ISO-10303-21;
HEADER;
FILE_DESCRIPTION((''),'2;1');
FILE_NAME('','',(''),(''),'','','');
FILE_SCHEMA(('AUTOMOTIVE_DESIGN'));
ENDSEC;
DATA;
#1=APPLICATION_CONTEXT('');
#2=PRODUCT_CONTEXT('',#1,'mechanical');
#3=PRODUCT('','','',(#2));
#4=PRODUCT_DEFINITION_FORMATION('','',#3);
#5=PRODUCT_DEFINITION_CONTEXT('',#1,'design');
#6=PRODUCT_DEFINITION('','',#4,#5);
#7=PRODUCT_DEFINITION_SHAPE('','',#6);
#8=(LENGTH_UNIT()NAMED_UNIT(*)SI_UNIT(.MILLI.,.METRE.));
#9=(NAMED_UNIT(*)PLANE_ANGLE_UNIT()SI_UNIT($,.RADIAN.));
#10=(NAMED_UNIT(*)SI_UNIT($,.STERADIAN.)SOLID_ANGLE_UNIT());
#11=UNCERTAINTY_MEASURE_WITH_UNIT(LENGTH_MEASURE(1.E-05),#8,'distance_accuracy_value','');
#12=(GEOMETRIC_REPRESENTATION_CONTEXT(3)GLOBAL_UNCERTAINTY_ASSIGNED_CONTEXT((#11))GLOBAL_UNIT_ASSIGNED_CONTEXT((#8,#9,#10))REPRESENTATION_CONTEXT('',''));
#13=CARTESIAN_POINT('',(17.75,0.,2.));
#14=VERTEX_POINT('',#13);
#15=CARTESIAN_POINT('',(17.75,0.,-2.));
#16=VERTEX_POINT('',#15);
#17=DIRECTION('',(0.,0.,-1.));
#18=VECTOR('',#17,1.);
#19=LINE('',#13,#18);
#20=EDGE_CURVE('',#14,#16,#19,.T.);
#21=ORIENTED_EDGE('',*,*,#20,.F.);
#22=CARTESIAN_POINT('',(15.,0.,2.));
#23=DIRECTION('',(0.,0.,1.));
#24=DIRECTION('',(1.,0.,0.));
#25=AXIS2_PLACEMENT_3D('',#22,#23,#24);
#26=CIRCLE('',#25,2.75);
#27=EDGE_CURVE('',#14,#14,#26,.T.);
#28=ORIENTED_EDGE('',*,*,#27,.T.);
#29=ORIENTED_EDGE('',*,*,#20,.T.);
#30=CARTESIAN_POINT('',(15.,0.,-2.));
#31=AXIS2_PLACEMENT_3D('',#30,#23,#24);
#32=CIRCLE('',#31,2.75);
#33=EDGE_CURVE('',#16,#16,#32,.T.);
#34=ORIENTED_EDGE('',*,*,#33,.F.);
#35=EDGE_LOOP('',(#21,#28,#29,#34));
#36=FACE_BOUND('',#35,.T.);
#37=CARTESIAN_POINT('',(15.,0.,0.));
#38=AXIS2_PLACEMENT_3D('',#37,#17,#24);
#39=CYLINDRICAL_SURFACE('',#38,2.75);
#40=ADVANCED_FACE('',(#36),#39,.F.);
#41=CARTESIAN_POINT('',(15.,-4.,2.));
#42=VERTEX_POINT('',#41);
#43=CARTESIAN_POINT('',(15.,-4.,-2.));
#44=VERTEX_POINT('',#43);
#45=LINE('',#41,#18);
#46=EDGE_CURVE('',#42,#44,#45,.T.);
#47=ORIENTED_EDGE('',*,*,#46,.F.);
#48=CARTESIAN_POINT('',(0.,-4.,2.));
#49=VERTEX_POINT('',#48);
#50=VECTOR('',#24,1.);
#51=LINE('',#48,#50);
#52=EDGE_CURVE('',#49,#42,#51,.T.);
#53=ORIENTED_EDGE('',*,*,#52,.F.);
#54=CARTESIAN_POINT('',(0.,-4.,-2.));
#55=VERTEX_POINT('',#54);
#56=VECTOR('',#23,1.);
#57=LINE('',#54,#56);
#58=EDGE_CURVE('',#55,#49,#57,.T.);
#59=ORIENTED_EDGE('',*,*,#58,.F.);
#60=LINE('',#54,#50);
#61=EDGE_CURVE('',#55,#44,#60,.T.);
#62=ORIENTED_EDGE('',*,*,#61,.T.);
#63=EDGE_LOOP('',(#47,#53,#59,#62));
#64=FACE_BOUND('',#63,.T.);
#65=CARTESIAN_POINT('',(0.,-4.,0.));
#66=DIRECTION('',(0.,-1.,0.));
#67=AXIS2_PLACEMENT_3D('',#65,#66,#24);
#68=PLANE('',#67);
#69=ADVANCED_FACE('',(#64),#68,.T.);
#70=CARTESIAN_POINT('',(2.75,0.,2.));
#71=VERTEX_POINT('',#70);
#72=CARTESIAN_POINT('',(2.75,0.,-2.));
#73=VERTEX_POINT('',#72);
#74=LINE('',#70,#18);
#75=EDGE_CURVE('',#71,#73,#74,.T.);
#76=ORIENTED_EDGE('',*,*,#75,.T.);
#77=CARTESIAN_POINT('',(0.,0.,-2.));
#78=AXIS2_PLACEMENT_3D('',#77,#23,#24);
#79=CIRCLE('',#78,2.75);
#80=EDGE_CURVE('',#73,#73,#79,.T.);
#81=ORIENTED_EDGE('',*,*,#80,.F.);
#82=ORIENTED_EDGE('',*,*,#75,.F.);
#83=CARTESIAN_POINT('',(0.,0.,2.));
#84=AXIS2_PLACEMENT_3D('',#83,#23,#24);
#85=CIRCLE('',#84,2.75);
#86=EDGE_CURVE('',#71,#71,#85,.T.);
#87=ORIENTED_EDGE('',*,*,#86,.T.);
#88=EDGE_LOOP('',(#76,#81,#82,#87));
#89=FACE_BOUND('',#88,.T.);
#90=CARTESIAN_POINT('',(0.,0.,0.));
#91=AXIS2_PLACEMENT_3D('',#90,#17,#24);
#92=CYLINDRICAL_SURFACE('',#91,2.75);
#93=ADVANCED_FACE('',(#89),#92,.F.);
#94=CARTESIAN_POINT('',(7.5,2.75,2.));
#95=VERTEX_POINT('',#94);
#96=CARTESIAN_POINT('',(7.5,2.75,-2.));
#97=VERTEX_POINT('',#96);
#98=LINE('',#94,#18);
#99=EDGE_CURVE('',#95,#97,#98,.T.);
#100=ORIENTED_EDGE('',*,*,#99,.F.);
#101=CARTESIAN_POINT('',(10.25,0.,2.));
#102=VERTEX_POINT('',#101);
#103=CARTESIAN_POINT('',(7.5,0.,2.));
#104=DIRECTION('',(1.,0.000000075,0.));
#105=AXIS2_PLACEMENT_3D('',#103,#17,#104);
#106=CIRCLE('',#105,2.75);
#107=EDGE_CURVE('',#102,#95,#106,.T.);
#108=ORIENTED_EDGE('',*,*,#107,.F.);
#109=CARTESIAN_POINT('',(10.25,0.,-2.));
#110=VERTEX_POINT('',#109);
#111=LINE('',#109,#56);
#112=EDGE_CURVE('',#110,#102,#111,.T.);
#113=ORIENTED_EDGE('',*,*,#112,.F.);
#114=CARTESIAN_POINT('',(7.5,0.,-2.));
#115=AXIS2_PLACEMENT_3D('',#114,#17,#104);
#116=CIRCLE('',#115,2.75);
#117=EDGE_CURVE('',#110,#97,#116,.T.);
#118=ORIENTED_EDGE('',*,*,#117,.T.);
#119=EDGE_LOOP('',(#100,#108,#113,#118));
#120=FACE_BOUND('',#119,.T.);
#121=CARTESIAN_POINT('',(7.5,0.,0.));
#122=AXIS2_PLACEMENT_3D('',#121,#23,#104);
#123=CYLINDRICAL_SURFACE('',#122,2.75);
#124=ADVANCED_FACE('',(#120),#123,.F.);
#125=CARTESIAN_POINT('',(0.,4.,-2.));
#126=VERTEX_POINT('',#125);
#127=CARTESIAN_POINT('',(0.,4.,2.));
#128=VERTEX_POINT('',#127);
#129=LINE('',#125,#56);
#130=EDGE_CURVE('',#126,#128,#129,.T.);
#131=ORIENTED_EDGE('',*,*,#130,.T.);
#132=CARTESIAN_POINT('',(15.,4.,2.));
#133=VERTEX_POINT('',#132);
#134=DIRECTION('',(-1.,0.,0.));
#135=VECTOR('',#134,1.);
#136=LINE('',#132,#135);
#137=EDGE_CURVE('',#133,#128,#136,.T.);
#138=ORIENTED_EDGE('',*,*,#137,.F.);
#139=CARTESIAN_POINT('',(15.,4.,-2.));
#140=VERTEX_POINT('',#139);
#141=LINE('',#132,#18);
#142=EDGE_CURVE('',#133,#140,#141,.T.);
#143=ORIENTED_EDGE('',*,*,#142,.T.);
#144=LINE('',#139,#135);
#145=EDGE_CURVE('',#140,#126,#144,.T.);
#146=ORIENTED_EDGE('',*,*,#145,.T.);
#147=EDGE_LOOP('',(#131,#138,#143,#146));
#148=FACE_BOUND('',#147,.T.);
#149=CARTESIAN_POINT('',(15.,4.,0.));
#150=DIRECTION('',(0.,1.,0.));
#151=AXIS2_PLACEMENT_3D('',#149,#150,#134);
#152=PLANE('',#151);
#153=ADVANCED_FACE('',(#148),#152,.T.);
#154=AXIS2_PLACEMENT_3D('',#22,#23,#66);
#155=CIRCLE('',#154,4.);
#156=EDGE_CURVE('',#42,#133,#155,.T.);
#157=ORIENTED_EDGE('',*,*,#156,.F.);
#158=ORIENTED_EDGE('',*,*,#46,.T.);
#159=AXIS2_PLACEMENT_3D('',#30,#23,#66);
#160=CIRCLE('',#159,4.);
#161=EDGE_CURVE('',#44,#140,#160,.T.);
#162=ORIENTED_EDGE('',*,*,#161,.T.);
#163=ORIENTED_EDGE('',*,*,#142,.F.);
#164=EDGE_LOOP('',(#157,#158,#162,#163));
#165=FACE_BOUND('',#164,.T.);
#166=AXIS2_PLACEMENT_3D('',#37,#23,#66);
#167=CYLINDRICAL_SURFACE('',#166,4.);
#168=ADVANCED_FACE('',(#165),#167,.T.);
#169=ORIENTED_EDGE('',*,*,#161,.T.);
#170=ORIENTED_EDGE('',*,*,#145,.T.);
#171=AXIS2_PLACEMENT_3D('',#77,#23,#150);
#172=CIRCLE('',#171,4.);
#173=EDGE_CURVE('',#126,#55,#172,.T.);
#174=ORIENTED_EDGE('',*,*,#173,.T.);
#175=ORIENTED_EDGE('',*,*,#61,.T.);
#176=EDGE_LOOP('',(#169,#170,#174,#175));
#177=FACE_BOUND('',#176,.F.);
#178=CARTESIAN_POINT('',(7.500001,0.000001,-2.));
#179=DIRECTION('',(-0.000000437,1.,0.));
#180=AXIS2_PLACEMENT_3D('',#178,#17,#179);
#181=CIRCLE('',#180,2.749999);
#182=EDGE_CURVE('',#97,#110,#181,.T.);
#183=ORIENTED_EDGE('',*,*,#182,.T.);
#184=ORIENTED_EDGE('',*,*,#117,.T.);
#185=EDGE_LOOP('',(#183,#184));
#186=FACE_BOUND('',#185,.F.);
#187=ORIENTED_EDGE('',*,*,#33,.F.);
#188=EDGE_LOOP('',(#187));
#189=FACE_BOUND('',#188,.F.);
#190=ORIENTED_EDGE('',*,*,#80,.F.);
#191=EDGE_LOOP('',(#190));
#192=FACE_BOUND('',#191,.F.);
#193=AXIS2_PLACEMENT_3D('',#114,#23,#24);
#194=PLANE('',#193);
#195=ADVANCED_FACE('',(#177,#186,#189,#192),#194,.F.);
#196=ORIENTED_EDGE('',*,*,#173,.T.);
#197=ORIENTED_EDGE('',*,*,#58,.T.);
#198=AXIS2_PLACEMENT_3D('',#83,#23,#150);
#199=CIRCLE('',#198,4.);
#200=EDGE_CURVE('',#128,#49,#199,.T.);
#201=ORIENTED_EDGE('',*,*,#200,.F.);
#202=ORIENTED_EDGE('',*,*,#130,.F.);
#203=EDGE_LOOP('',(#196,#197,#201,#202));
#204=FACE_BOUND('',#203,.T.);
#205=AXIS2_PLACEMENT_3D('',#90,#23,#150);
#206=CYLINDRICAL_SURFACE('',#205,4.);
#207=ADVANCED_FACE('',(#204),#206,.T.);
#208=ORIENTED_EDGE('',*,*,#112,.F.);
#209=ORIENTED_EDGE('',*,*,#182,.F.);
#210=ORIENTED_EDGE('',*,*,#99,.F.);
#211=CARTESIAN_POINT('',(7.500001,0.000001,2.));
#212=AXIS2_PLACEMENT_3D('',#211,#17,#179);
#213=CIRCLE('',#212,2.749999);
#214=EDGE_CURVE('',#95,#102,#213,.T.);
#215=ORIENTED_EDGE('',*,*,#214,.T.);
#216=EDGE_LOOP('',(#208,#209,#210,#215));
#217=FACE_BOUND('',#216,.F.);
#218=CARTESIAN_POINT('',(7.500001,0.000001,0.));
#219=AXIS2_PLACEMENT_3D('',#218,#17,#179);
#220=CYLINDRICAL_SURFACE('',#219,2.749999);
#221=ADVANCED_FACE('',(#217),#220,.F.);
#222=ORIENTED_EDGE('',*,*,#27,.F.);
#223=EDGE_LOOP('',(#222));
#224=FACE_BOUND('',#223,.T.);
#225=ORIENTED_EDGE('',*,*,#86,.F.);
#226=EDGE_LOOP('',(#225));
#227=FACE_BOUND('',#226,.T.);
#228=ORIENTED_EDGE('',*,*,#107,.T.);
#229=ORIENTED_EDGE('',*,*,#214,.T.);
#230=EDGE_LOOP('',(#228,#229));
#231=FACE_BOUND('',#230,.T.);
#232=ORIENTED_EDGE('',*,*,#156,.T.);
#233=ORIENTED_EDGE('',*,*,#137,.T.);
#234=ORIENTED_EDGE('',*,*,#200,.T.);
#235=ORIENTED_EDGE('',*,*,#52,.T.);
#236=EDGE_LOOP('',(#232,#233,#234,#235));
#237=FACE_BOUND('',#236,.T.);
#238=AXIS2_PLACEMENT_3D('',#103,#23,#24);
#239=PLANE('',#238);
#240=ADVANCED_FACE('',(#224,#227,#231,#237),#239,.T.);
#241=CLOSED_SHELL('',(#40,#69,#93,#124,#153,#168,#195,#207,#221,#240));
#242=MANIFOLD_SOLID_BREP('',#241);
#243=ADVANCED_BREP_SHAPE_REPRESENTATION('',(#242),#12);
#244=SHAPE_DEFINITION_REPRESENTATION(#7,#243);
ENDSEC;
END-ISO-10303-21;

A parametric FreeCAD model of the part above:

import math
import FreeCAD as App
import Part
import Sketcher

V = App.Vector

doc = App.newDocument("Part")
body = doc.addObject("PartDesign::Body", "Body")

# Sketch on XY plane
sketch1 = body.newObject("Sketcher::SketchObject", "Sketch")
sketch1.AttachmentSupport = (doc.getObject("XY_Plane"), [""])
sketch1.MapMode = "FlatFace"
sketch1.addGeometry([
    Part.LineSegment(V(15, 4, 0), V(0, 4, 0)),  # 0
    Part.ArcOfCircle(Part.Circle(V(0, 0, 0), V(0, 0, 1), 4), math.radians(90), math.radians(270)),  # 1
    Part.LineSegment(V(0, -4, 0), V(15, -4, 0)),  # 2
    Part.ArcOfCircle(Part.Circle(V(15, 0, 0), V(0, 0, 1), 4), math.radians(-90), math.radians(90)),  # 3
    Part.Circle(V(0, 0, 0), V(0, 0, 1), 2.8),  # 4
    Part.ArcOfCircle(Part.Circle(V(7.5, 0, 0), V(0, 0, 1), 2.8), math.radians(90), math.radians(360)),  # 5
    Part.ArcOfCircle(Part.Circle(V(7.5, 0, 0), V(0, 0, 1), 2.7), math.radians(0), math.radians(90)),  # 6
    Part.Circle(V(15, 0, 0), V(0, 0, 1), 2.8),  # 7
], False)
sketch1.addConstraint([
    Sketcher.Constraint("Tangent", 0, 2, 1, 1),
    Sketcher.Constraint("Tangent", 1, 2, 2, 1),
    Sketcher.Constraint("Tangent", 2, 2, 3, 1),
    Sketcher.Constraint("Tangent", 3, 2, 0, 1),
    Sketcher.Constraint("Tangent", 5, 1, 6, 2),
    Sketcher.Constraint("Coincident", 6, 1, 5, 2),
    Sketcher.Constraint("Horizontal", 0),
    Sketcher.Constraint("Horizontal", 2),
    Sketcher.Constraint("Coincident", 1, 3, -1, 1),
    Sketcher.Constraint("Coincident", 4, 3, -1, 1),
    Sketcher.Constraint("Coincident", 7, 3, 3, 3),
    Sketcher.Constraint("Equal", 4, 5),
    Sketcher.Constraint("Equal", 6, 7),
    Sketcher.Constraint("PointOnObject", 5, 3, -1),
    Sketcher.Constraint("PointOnObject", 6, 1, -1),
    Sketcher.Constraint("Vertical", 6, 3, 5, 1),
    Sketcher.Constraint("Radius", 1, 4.0),
    Sketcher.Constraint("Diameter", 4, 5.5),
    Sketcher.Constraint("DistanceX", 0, 2, 0, 1, 15.0),
    Sketcher.Constraint("DistanceX", -1, 1, 5, 3, 7.5),
])
pad1 = body.newObject("PartDesign::Pad", "Pad")
pad1.Profile = sketch1
pad1.Length = 4
pad1.Midplane = True

doc.recompute()
